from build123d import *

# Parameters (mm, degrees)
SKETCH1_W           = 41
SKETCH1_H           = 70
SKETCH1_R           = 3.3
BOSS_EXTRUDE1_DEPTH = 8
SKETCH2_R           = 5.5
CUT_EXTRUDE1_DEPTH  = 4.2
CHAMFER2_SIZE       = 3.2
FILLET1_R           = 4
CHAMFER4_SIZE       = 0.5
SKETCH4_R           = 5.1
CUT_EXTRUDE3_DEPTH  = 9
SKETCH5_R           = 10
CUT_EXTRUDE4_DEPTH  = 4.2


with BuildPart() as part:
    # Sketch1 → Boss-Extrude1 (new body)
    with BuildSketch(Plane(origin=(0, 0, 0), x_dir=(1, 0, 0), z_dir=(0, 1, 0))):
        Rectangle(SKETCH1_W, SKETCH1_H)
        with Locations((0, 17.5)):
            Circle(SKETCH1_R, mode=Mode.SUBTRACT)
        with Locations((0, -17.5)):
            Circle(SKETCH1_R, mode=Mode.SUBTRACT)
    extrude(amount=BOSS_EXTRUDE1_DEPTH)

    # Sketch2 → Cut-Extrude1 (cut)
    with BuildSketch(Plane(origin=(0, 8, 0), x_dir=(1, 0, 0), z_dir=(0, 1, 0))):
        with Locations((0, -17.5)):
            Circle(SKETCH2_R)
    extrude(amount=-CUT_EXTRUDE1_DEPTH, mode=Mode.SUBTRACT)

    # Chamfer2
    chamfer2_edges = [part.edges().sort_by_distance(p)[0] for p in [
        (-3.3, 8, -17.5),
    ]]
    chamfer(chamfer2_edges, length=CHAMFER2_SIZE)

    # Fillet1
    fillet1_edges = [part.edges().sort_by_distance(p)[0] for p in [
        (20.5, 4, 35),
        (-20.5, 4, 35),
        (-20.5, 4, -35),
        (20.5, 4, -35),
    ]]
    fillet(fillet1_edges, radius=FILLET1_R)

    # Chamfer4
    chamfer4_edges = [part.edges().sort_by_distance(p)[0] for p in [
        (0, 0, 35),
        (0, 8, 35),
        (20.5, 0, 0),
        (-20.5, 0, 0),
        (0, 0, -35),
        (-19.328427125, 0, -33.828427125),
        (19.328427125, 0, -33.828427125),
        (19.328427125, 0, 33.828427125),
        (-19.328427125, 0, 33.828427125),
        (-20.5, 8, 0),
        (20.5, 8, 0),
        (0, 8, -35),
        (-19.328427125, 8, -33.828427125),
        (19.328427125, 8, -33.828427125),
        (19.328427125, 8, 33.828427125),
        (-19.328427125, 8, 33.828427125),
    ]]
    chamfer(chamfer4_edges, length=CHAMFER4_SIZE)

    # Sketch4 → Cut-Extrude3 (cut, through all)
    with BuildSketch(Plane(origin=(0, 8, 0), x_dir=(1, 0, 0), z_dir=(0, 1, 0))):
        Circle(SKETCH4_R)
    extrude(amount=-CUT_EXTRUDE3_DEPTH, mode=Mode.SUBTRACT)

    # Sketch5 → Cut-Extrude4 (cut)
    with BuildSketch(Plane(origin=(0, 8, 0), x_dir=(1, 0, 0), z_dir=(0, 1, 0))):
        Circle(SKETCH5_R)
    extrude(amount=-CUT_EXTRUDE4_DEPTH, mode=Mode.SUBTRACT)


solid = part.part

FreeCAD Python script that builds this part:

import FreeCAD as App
import Part
import Sketcher

V = App.Vector


def edges_at(feature, points):
    """Names of the edges that pass closest to the given points."""
    edges = feature.Shape.Edges
    near = lambda p: min(range(len(edges)), key=lambda i: edges[i].distToShape(Part.Vertex(*p))[0])
    return sorted({f"Edge{near(p) + 1}" for p in points})

doc = App.newDocument("Part")
body = doc.addObject("PartDesign::Body", "Body")

sketch1 = body.newObject("Sketcher::SketchObject", "Sketch")
sketch1.AttachmentSupport = (doc.getObject("XZ_Plane"), [""])
sketch1.MapMode = "FlatFace"
sketch1.addGeometry(Part.LineSegment(V(-20.5, -35, 0), V(-20.5, 35, 0)), False)
sketch1.addGeometry(Part.LineSegment(V(-20.5, 35, 0), V(20.5, 35, 0)), False)
sketch1.addGeometry(Part.LineSegment(V(20.5, 35, 0), V(20.5, -35, 0)), False)
sketch1.addGeometry(Part.LineSegment(V(20.5, -35, 0), V(-20.5, -35, 0)), False)
sketch1.addGeometry(Part.Circle(V(0, 17.5, 0), V(0, 0, 1), 3.3), False)
sketch1.addGeometry(Part.Circle(V(0, -17.5, 0), V(0, 0, 1), 3.3), False)
sketch1.addConstraint(Sketcher.Constraint("Coincident", 0, 2, 1, 1))
sketch1.addConstraint(Sketcher.Constraint("Coincident", 1, 2, 2, 1))
sketch1.addConstraint(Sketcher.Constraint("Coincident", 2, 2, 3, 1))
sketch1.addConstraint(Sketcher.Constraint("Coincident", 3, 2, 0, 1))
sketch1.addConstraint(Sketcher.Constraint("Vertical", 0))
sketch1.addConstraint(Sketcher.Constraint("Horizontal", 1))
sketch1.addConstraint(Sketcher.Constraint("Vertical", 2))
sketch1.addConstraint(Sketcher.Constraint("Horizontal", 3))
sketch1.addConstraint(Sketcher.Constraint("Equal", 4, 5))
sketch1.addConstraint(Sketcher.Constraint("Symmetric", 4, 3, 5, 3, -1, 1))
sketch1.addConstraint(Sketcher.Constraint("Symmetric", 0, 2, 2, 2, -1, 1))
sketch1.addConstraint(Sketcher.Constraint("PointOnObject", 4, 3, -2))
sketch1.addConstraint(Sketcher.Constraint("Diameter", 4, 6.6))
sketch1.addConstraint(Sketcher.Constraint("DistanceX", 1, 1, 1, 2, 41.0))
sketch1.addConstraint(Sketcher.Constraint("DistanceY", 0, 1, 0, 2, 70.0))
sketch1.addConstraint(Sketcher.Constraint("DistanceY", 5, 3, 4, 3, 35.0))
pad1 = body.newObject("PartDesign::Pad", "Pad")
pad1.Profile = sketch1
pad1.Length = 8
pad1.Reversed = True

sketch2 = body.newObject("Sketcher::SketchObject", "Sketch001")
sketch2.AttachmentSupport = (doc.getObject("XZ_Plane"), [""])
sketch2.MapMode = "FlatFace"
sketch2.AttachmentOffset = App.Placement(V(0, 0, -8), App.Rotation())
sketch2.addGeometry(Part.Circle(V(0, 17.5, 0), V(0, 0, 1), 5.5), False)
sketch2.addConstraint(Sketcher.Constraint("PointOnObject", 0, 3, -2))
sketch2.addConstraint(Sketcher.Constraint("Diameter", 0, 11.0))
sketch2.addConstraint(Sketcher.Constraint("DistanceY", -1, 1, 0, 3, 17.5))
pocket1 = body.newObject("PartDesign::Pocket", "Pocket")
pocket1.Profile = sketch2
pocket1.Length = 4.2
pocket1.Reversed = True
doc.recompute()

chamfer = body.newObject("PartDesign::Chamfer", "Chamfer")
chamfer.Base = (pocket1, edges_at(pocket1, [(-3.3, 8, -17.5)]))
chamfer.Size = 3.2
doc.recompute()

fillet = body.newObject("PartDesign::Fillet", "Fillet")
fillet.Base = (chamfer, edges_at(chamfer, [
    (20.5, 4, 35),
    (-20.5, 4, 35),
    (-20.5, 4, -35),
    (20.5, 4, -35),
]))
fillet.Radius = 4
doc.recompute()

chamfer2 = body.newObject("PartDesign::Chamfer", "Chamfer001")
chamfer2.Base = (fillet, edges_at(fillet, [
    (0, 0, 35),
    (0, 8, 35),
    (20.5, 0, 0),
    (-20.5, 0, 0),
    (0, 0, -35),
    (-19.328, 0, -33.828),
    (19.328, 0, -33.828),
    (19.328, 0, 33.828),
    (-19.328, 0, 33.828),
    (-20.5, 8, 0),
    (20.5, 8, 0),
    (0, 8, -35),
    (-19.328, 8, -33.828),
    (19.328, 8, -33.828),
    (19.328, 8, 33.828),
    (-19.328, 8, 33.828),
]))
chamfer2.Size = 0.5

sketch3 = body.newObject("Sketcher::SketchObject", "Sketch002")
sketch3.AttachmentSupport = (doc.getObject("XZ_Plane"), [""])
sketch3.MapMode = "FlatFace"
sketch3.AttachmentOffset = App.Placement(V(0, 0, -8), App.Rotation())
sketch3.addGeometry(Part.Circle(V(0, 0, 0), V(0, 0, 1), 5.1), False)
sketch3.addConstraint(Sketcher.Constraint("Coincident", 0, 3, -1, 1))
sketch3.addConstraint(Sketcher.Constraint("Diameter", 0, 10.2))
pocket2 = body.newObject("PartDesign::Pocket", "Pocket001")
pocket2.Profile = sketch3
pocket2.Type = "ThroughAll"
pocket2.Reversed = True

sketch4 = body.newObject("Sketcher::SketchObject", "Sketch003")
sketch4.AttachmentSupport = (doc.getObject("XZ_Plane"), [""])
sketch4.MapMode = "FlatFace"
sketch4.AttachmentOffset = App.Placement(V(0, 0, -8), App.Rotation())
sketch4.addGeometry(Part.Circle(V(0, 0, 0), V(0, 0, 1), 10), False)
sketch4.addConstraint(Sketcher.Constraint("Coincident", 0, 3, -1, 1))
sketch4.addConstraint(Sketcher.Constraint("Diameter", 0, 20.0))
pocket3 = body.newObject("PartDesign::Pocket", "Pocket002")
pocket3.Profile = sketch4
pocket3.Length = 4.2
pocket3.Reversed = True

doc.recompute()
